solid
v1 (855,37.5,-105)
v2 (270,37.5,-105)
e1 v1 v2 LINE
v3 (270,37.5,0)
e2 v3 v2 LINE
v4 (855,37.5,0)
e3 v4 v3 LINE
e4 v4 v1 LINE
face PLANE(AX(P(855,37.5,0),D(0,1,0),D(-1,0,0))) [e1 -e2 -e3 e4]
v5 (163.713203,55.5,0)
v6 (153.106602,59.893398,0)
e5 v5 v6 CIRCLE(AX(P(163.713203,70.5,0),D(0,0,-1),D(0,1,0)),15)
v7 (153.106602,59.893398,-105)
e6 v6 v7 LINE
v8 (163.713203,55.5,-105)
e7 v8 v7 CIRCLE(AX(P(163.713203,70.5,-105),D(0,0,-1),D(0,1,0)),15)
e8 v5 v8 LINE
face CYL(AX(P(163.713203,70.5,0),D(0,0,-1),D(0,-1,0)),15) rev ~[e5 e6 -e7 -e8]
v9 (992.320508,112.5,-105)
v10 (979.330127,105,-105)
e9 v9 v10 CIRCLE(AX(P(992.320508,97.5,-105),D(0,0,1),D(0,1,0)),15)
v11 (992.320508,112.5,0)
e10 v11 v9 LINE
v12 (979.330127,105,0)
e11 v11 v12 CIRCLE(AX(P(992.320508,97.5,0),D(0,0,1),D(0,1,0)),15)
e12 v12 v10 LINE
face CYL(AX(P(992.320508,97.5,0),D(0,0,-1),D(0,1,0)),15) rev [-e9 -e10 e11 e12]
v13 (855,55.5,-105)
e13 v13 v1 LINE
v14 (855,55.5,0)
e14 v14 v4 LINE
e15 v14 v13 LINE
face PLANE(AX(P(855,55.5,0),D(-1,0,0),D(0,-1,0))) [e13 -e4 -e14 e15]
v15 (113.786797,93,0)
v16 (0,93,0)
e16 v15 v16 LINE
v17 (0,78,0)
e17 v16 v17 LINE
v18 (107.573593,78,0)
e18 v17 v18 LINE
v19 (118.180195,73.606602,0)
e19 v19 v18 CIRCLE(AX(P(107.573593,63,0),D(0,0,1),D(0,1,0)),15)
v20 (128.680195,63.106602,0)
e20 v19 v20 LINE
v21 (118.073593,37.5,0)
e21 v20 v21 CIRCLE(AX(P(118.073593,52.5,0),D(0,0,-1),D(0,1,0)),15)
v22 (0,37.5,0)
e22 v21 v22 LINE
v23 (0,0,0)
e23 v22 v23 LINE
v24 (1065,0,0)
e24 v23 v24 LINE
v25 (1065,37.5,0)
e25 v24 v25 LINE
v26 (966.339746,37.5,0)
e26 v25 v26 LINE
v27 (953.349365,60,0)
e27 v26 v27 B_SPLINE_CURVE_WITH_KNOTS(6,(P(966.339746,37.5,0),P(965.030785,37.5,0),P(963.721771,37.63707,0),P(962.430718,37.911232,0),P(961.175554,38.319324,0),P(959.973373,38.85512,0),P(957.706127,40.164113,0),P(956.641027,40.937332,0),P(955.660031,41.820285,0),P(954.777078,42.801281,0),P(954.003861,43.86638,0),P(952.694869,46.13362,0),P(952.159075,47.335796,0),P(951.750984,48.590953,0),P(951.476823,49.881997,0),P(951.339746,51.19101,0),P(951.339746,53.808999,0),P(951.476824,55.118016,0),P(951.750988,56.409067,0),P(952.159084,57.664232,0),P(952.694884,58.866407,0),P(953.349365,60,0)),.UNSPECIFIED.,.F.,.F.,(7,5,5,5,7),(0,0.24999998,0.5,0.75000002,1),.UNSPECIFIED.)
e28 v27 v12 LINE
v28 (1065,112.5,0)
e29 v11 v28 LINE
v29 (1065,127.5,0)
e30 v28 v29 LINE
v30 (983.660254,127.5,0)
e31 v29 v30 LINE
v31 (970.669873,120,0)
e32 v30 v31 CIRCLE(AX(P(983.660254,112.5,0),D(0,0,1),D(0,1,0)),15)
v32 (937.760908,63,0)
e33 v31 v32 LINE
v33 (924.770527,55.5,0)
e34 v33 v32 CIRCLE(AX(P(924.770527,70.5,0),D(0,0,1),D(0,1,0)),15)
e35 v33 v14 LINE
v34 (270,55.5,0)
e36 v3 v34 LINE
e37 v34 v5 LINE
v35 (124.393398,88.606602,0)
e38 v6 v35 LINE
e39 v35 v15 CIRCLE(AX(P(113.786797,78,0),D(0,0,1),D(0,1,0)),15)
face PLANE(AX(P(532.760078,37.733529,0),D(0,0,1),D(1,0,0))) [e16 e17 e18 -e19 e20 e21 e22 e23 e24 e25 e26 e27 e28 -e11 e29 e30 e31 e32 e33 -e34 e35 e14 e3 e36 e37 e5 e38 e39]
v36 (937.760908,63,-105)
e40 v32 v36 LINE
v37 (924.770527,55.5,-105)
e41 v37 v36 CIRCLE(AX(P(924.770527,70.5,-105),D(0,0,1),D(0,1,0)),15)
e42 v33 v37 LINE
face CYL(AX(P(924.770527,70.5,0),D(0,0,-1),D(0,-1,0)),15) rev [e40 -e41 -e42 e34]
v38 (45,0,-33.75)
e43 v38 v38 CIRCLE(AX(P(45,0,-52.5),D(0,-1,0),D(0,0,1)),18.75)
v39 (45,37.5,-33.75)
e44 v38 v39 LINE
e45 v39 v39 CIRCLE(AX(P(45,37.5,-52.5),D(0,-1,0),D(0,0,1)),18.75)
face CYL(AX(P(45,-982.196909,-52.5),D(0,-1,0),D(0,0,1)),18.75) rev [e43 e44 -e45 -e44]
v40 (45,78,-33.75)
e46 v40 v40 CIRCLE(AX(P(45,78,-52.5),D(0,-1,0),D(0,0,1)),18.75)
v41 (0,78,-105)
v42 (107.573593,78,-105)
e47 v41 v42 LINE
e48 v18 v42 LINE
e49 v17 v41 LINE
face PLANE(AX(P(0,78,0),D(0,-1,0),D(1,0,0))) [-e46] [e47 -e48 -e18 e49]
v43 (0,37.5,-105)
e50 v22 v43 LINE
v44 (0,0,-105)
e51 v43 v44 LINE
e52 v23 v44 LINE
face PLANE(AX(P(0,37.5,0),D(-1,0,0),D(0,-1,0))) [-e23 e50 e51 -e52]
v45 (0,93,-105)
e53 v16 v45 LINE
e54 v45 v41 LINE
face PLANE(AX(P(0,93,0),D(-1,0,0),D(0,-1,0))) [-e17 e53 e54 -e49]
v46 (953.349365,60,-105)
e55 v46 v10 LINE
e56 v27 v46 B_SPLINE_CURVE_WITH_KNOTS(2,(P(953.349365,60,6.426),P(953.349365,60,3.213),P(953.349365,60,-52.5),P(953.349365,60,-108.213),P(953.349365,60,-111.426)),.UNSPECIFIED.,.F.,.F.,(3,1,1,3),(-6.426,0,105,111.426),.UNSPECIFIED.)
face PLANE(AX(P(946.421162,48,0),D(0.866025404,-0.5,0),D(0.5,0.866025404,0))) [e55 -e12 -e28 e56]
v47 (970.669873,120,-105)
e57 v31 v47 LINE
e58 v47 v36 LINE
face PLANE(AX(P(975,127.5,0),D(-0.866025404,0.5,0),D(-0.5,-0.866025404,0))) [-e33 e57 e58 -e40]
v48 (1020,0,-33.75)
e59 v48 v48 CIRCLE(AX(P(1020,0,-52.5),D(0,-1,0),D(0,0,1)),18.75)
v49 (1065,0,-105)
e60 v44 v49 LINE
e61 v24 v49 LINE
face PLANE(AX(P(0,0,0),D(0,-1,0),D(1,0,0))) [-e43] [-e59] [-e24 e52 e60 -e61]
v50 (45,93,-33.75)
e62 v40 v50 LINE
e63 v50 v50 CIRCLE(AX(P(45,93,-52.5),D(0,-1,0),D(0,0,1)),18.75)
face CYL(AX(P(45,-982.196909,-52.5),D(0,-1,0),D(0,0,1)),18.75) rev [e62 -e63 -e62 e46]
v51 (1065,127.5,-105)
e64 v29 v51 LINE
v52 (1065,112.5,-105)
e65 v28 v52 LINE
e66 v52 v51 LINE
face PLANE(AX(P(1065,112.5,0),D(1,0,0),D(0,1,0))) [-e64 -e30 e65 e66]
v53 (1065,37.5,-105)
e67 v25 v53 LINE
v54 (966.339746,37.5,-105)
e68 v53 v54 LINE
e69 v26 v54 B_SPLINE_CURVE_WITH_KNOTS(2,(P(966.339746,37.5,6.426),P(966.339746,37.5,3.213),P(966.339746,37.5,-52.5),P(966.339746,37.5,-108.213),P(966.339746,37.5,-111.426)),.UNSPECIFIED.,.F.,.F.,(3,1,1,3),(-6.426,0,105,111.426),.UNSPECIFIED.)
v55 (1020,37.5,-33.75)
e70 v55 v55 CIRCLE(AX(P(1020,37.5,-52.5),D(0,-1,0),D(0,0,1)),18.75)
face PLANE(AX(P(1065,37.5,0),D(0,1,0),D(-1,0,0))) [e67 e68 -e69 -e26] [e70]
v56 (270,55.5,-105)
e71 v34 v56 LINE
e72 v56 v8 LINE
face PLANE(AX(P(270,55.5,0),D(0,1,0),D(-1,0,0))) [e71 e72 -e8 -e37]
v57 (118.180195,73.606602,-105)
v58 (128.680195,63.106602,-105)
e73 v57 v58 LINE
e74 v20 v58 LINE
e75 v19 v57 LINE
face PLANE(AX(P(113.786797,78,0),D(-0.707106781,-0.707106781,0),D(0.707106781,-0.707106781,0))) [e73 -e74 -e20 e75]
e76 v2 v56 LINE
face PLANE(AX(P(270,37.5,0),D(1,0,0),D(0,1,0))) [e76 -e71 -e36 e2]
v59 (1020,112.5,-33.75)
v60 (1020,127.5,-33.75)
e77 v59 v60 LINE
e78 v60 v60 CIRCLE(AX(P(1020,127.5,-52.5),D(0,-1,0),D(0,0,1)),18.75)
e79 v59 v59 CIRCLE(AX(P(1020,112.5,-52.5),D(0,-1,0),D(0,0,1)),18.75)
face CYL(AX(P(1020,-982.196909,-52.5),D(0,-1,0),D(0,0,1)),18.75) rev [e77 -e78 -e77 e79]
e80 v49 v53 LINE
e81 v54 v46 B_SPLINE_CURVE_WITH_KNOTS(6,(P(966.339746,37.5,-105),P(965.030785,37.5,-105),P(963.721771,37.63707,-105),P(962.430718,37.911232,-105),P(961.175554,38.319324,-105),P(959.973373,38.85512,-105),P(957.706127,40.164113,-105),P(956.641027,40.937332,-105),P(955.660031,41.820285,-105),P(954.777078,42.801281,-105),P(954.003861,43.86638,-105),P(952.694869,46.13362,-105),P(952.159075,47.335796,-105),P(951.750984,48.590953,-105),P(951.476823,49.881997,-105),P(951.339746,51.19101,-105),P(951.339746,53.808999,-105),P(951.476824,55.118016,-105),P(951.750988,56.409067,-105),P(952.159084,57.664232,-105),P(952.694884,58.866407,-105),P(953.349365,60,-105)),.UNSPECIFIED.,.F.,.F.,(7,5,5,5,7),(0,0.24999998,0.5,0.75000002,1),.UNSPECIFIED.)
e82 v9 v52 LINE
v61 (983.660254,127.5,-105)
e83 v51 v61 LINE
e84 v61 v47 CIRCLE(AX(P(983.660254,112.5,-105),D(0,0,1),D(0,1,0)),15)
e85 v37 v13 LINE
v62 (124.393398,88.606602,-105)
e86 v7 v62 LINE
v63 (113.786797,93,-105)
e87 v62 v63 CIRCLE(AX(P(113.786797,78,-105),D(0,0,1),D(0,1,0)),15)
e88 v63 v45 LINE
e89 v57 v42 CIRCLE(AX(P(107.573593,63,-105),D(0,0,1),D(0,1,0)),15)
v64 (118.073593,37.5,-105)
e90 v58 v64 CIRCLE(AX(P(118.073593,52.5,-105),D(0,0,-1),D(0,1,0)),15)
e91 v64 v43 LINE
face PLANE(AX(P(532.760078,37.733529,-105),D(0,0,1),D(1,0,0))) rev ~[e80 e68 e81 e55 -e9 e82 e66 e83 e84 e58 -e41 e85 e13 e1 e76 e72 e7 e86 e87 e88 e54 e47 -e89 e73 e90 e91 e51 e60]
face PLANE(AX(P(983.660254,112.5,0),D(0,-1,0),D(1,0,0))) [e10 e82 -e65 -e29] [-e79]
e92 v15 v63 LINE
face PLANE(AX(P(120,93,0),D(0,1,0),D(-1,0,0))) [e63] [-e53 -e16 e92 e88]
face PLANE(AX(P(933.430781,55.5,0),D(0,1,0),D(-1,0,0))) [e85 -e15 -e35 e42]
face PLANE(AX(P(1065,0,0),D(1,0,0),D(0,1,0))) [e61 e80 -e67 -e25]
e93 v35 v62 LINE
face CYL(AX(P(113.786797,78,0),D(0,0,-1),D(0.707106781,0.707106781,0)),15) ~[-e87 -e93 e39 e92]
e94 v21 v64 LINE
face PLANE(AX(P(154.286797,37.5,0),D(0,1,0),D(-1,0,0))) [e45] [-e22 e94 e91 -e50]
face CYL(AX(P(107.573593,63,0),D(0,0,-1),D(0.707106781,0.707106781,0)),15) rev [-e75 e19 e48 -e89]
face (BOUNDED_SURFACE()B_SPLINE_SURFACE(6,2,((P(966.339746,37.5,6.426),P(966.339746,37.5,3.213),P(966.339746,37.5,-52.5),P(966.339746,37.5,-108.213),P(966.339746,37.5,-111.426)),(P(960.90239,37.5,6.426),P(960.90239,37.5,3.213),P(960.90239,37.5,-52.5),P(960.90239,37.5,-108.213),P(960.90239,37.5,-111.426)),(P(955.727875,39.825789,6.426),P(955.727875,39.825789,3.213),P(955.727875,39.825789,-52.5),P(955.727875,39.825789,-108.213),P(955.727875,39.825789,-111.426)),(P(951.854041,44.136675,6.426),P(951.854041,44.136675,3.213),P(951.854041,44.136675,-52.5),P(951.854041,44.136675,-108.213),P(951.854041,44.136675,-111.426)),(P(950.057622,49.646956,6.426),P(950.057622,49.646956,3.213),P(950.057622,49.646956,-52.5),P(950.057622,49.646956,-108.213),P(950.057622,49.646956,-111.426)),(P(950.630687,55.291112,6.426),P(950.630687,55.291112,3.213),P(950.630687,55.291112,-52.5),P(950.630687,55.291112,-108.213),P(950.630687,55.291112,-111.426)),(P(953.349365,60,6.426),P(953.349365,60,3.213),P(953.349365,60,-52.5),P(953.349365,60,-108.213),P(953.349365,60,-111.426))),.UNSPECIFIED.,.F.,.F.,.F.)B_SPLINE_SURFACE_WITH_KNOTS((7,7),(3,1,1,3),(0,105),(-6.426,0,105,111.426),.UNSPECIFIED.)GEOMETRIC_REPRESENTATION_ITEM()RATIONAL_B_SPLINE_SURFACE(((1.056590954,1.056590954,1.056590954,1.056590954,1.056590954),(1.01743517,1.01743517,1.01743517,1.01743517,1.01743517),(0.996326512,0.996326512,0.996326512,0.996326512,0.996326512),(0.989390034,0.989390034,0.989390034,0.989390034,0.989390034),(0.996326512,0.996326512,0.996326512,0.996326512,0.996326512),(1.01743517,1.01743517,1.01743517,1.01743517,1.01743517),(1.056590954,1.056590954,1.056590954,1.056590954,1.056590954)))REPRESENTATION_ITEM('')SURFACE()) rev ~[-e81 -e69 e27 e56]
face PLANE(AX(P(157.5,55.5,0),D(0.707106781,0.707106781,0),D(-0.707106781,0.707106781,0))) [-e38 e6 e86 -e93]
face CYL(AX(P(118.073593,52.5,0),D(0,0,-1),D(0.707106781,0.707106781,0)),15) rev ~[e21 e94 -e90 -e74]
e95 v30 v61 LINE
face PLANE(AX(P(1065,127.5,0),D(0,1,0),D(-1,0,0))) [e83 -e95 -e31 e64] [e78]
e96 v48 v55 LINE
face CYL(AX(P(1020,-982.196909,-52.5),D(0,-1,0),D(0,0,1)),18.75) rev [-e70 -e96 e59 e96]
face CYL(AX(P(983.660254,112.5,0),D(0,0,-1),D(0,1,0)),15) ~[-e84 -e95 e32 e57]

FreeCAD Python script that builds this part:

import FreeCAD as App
import Part
import Sketcher
Q = App.Units.Quantity


def edges_at(feature, points):
    """Names of the edges that pass closest to the given points."""
    edges = feature.Shape.Edges
    near = lambda p: min(range(len(edges)), key=lambda i: edges[i].distToShape(Part.Vertex(*p))[0])
    return sorted({f"Edge{near(p) + 1}" for p in points})


def add_polygon(sketch, points):
    """Adds a closed chain of lines whose ends are joined by coincident constraints."""
    first, n = sketch.GeometryCount, len(points)
    for a, b in zip(points, points[1:] + points[:1]):
        sketch.addGeometry(Part.LineSegment(App.Vector(*a, 0), App.Vector(*b, 0)), False)
    for i in range(n):
        sketch.addConstraint(Sketcher.Constraint("Coincident", first + i, 2, first + (i + 1) % n, 1))

doc = App.newDocument("Part")
params = doc.addObject("Spreadsheet::Sheet", "Params")
for row, (alias, value) in enumerate([
    ("sketch1_width", "1065 mm"),
    ("sketch1_width2", "90 mm"),
    ("sketch1_width3", "585 mm"),
    ("sketch1_width4", "120 mm"),
    ("sketch1_height", "15 mm"),
    ("pad1_length", "105 mm"),
    ("fillet_radius", "15 mm"),
    ("fillet2_radius", "15 mm"),
    ("fillet3_radius", "15 mm"),
    ("fillet4_radius", "15 mm"),
    ("fillet5_radius", "15 mm"),
    ("sketch2_diameter", "37.5 mm"),
], start=1):
    params.set(f"A{row}", alias)
    params.set(f"B{row}", "=" + value)
    params.setAlias(f"B{row}", alias)

body = doc.addObject("PartDesign::Body", "Body")

sketch1 = body.newObject("Sketcher::SketchObject", "Sketch")
sketch1.AttachmentSupport = (doc.getObject("XY_Plane"), [""])
sketch1.MapMode = "FlatFace"
add_polygon(sketch1, [(0, 93), (0, 78), (114, 78), (154, 38), (0, 38), (0, 0), (1065, 0), (1065, 38), (941, 38), (946, 48), (984, 112), (1065, 112), (1065, 128), (975, 128), (933, 56), (855, 56), (855, 38), (270, 38), (270, 56), (158, 56), (120, 93)])
sketch1.addConstraint(Sketcher.Constraint("Vertical", 0))
sketch1.addConstraint(Sketcher.Constraint("Horizontal", 1))
sketch1.addConstraint(Sketcher.Constraint("Horizontal", 3))
sketch1.addConstraint(Sketcher.Constraint("Vertical", 4))
sketch1.addConstraint(Sketcher.Constraint("Horizontal", 5))
sketch1.addConstraint(Sketcher.Constraint("Vertical", 6))
sketch1.addConstraint(Sketcher.Constraint("Horizontal", 7))
sketch1.addConstraint(Sketcher.Constraint("Horizontal", 10))
sketch1.addConstraint(Sketcher.Constraint("Vertical", 11))
sketch1.addConstraint(Sketcher.Constraint("Horizontal", 12))
sketch1.addConstraint(Sketcher.Constraint("Horizontal", 14))
sketch1.addConstraint(Sketcher.Constraint("Vertical", 15))
sketch1.addConstraint(Sketcher.Constraint("Horizontal", 16))
sketch1.addConstraint(Sketcher.Constraint("Vertical", 17))
sketch1.addConstraint(Sketcher.Constraint("Horizontal", 18))
sketch1.addConstraint(Sketcher.Constraint("Horizontal", 20))
sketch1.addConstraint(Sketcher.Constraint("Coincident", 4, 2, -1, 1))
sketch1.addConstraint(Sketcher.Constraint("PointOnObject", 0, 2, -2))
sketch1.addConstraint(Sketcher.Constraint("Parallel", 9, 13))
sketch1.addConstraint(Sketcher.Constraint("Parallel", 2, 19))
sketch1.addConstraint(Sketcher.Constraint("Horizontal", 3, 2, 6, 2))
sketch1.addConstraint(Sketcher.Constraint("Horizontal", 7, 2, 15, 2))
sketch1.addConstraint(Sketcher.Constraint("Horizontal", 14, 2, 17, 2))
sketch1.addConstraint(Sketcher.Constraint("Vertical", 6, 2, 10, 2))
sketch1.addConstraint(Sketcher.Constraint("Equal", 0, 11))
sketch1.addConstraint(Sketcher.Constraint("DistanceX", 5, 1, 5, 2, 1065.0))
sketch1.addConstraint(Sketcher.Constraint("DistanceX", 12, 2, 12, 1, 90.0))
sketch1.addConstraint(Sketcher.Constraint("DistanceX", 16, 2, 16, 1, 585.0))
sketch1.addConstraint(Sketcher.Constraint("DistanceX", 20, 2, 20, 1, 120.0))
sketch1.addConstraint(Sketcher.Constraint("DistanceY", 0, 2, 0, 1, 15.0))
sketch1.addConstraint(Sketcher.Constraint("DistanceY", 15, 2, 15, 1, 18.0))
sketch1.addConstraint(Sketcher.Constraint("Angle", 2, Q("-45 deg")))
sketch1.addConstraint(Sketcher.Constraint("Angle", 9, Q("60 deg")))
sketch1.addConstraint(Sketcher.Constraint("DistanceX", 18, 2, 18, 1, 112.5))
sketch1.addConstraint(Sketcher.Constraint("DistanceY", 4, 2, 4, 1, 37.5))
sketch1.addConstraint(Sketcher.Constraint("DistanceY", -1, 1, 0, 2, 78.0))
sketch1.addConstraint(Sketcher.Constraint("DistanceY", -1, 1, 8, 2, 48.0))
sketch1.addConstraint(Sketcher.Constraint("DistanceY", 7, 2, 9, 2, 75.0))
sketch1.addConstraint(Sketcher.Constraint("DistanceX", 7, 2, 7, 1, 124.077351))
sketch1.addConstraint(Sketcher.Constraint("Distance", 8, 11.85258))
sketch1.addConstraint(Sketcher.Constraint("DistanceX", 1, 1, 1, 2, 113.786797))
sketch1.setExpression("Constraints[46]", "Params.sketch1_width")
sketch1.setExpression("Constraints[47]", "Params.sketch1_width2")
sketch1.setExpression("Constraints[48]", "Params.sketch1_width3")
sketch1.setExpression("Constraints[49]", "Params.sketch1_width4")
sketch1.setExpression("Constraints[50]", "Params.sketch1_height")
pad1 = body.newObject("PartDesign::Pad", "Pad")
pad1.Profile = sketch1
pad1.setExpression("Length", "Params.pad1_length")
pad1.Reversed = True
doc.recompute()

fillet = body.newObject("PartDesign::Fillet", "Fillet")
fillet.Base = (pad1, edges_at(pad1, [
    (157.5, 55.5, -52.5),
    (120, 93, -52.5),
    (940.923, 37.5, -52.5),
    (975, 127.5, -52.5),
]))
fillet.setExpression("Radius", "Params.fillet_radius")
doc.recompute()

fillet2 = body.newObject("PartDesign::Fillet", "Fillet001")
fillet2.Base = (fillet, edges_at(fillet, [(113.787, 78, -52.5)]))
fillet2.setExpression("Radius", "Params.fillet2_radius")
doc.recompute()

fillet3 = body.newObject("PartDesign::Fillet", "Fillet002")
fillet3.Base = (fillet2, edges_at(fillet2, [(154.287, 37.5, -52.5)]))
fillet3.setExpression("Radius", "Params.fillet3_radius")
doc.recompute()

fillet4 = body.newObject("PartDesign::Fillet", "Fillet003")
fillet4.Base = (fillet3, edges_at(fillet3, [(933.431, 55.5, -52.5)]))
fillet4.setExpression("Radius", "Params.fillet4_radius")
doc.recompute()

fillet5 = body.newObject("PartDesign::Fillet", "Fillet004")
fillet5.Base = (fillet4, edges_at(fillet4, [(983.66, 112.5, -52.5)]))
fillet5.setExpression("Radius", "Params.fillet5_radius")

sketch2 = body.newObject("Sketcher::SketchObject", "Sketch001")
sketch2.AttachmentSupport = (doc.getObject("XZ_Plane"), [""])
sketch2.MapMode = "FlatFace"
sketch2.AttachmentOffset = App.Placement(App.Vector(0, 0, -93), App.Rotation())
sketch2.addGeometry(Part.Circle(App.Vector(45, -52, 0), App.Vector(0, 0, 1), 19), False)
sketch2.addGeometry(Part.Circle(App.Vector(1020, -52, 0), App.Vector(0, 0, 1), 19), False)
sketch2.addConstraint(Sketcher.Constraint("Equal", 0, 1))
sketch2.addConstraint(Sketcher.Constraint("Horizontal", 0, 3, 1, 3))
sketch2.addConstraint(Sketcher.Constraint("Diameter", 0, 37.5))
sketch2.addConstraint(Sketcher.Constraint("DistanceX", -1, 1, 0, 3, 45.0))
sketch2.addConstraint(Sketcher.Constraint("DistanceX", -1, 1, 1, 3, 1020.0))
sketch2.addConstraint(Sketcher.Constraint("DistanceY", 0, 3, -1, 1, 52.5))
sketch2.setExpression("Constraints[2]", "Params.sketch2_diameter")
pocket1 = body.newObject("PartDesign::Pocket", "Pocket")
pocket1.Profile = sketch2
pocket1.Type = "ThroughAll"
pocket1.Midplane = True

doc.recompute()
